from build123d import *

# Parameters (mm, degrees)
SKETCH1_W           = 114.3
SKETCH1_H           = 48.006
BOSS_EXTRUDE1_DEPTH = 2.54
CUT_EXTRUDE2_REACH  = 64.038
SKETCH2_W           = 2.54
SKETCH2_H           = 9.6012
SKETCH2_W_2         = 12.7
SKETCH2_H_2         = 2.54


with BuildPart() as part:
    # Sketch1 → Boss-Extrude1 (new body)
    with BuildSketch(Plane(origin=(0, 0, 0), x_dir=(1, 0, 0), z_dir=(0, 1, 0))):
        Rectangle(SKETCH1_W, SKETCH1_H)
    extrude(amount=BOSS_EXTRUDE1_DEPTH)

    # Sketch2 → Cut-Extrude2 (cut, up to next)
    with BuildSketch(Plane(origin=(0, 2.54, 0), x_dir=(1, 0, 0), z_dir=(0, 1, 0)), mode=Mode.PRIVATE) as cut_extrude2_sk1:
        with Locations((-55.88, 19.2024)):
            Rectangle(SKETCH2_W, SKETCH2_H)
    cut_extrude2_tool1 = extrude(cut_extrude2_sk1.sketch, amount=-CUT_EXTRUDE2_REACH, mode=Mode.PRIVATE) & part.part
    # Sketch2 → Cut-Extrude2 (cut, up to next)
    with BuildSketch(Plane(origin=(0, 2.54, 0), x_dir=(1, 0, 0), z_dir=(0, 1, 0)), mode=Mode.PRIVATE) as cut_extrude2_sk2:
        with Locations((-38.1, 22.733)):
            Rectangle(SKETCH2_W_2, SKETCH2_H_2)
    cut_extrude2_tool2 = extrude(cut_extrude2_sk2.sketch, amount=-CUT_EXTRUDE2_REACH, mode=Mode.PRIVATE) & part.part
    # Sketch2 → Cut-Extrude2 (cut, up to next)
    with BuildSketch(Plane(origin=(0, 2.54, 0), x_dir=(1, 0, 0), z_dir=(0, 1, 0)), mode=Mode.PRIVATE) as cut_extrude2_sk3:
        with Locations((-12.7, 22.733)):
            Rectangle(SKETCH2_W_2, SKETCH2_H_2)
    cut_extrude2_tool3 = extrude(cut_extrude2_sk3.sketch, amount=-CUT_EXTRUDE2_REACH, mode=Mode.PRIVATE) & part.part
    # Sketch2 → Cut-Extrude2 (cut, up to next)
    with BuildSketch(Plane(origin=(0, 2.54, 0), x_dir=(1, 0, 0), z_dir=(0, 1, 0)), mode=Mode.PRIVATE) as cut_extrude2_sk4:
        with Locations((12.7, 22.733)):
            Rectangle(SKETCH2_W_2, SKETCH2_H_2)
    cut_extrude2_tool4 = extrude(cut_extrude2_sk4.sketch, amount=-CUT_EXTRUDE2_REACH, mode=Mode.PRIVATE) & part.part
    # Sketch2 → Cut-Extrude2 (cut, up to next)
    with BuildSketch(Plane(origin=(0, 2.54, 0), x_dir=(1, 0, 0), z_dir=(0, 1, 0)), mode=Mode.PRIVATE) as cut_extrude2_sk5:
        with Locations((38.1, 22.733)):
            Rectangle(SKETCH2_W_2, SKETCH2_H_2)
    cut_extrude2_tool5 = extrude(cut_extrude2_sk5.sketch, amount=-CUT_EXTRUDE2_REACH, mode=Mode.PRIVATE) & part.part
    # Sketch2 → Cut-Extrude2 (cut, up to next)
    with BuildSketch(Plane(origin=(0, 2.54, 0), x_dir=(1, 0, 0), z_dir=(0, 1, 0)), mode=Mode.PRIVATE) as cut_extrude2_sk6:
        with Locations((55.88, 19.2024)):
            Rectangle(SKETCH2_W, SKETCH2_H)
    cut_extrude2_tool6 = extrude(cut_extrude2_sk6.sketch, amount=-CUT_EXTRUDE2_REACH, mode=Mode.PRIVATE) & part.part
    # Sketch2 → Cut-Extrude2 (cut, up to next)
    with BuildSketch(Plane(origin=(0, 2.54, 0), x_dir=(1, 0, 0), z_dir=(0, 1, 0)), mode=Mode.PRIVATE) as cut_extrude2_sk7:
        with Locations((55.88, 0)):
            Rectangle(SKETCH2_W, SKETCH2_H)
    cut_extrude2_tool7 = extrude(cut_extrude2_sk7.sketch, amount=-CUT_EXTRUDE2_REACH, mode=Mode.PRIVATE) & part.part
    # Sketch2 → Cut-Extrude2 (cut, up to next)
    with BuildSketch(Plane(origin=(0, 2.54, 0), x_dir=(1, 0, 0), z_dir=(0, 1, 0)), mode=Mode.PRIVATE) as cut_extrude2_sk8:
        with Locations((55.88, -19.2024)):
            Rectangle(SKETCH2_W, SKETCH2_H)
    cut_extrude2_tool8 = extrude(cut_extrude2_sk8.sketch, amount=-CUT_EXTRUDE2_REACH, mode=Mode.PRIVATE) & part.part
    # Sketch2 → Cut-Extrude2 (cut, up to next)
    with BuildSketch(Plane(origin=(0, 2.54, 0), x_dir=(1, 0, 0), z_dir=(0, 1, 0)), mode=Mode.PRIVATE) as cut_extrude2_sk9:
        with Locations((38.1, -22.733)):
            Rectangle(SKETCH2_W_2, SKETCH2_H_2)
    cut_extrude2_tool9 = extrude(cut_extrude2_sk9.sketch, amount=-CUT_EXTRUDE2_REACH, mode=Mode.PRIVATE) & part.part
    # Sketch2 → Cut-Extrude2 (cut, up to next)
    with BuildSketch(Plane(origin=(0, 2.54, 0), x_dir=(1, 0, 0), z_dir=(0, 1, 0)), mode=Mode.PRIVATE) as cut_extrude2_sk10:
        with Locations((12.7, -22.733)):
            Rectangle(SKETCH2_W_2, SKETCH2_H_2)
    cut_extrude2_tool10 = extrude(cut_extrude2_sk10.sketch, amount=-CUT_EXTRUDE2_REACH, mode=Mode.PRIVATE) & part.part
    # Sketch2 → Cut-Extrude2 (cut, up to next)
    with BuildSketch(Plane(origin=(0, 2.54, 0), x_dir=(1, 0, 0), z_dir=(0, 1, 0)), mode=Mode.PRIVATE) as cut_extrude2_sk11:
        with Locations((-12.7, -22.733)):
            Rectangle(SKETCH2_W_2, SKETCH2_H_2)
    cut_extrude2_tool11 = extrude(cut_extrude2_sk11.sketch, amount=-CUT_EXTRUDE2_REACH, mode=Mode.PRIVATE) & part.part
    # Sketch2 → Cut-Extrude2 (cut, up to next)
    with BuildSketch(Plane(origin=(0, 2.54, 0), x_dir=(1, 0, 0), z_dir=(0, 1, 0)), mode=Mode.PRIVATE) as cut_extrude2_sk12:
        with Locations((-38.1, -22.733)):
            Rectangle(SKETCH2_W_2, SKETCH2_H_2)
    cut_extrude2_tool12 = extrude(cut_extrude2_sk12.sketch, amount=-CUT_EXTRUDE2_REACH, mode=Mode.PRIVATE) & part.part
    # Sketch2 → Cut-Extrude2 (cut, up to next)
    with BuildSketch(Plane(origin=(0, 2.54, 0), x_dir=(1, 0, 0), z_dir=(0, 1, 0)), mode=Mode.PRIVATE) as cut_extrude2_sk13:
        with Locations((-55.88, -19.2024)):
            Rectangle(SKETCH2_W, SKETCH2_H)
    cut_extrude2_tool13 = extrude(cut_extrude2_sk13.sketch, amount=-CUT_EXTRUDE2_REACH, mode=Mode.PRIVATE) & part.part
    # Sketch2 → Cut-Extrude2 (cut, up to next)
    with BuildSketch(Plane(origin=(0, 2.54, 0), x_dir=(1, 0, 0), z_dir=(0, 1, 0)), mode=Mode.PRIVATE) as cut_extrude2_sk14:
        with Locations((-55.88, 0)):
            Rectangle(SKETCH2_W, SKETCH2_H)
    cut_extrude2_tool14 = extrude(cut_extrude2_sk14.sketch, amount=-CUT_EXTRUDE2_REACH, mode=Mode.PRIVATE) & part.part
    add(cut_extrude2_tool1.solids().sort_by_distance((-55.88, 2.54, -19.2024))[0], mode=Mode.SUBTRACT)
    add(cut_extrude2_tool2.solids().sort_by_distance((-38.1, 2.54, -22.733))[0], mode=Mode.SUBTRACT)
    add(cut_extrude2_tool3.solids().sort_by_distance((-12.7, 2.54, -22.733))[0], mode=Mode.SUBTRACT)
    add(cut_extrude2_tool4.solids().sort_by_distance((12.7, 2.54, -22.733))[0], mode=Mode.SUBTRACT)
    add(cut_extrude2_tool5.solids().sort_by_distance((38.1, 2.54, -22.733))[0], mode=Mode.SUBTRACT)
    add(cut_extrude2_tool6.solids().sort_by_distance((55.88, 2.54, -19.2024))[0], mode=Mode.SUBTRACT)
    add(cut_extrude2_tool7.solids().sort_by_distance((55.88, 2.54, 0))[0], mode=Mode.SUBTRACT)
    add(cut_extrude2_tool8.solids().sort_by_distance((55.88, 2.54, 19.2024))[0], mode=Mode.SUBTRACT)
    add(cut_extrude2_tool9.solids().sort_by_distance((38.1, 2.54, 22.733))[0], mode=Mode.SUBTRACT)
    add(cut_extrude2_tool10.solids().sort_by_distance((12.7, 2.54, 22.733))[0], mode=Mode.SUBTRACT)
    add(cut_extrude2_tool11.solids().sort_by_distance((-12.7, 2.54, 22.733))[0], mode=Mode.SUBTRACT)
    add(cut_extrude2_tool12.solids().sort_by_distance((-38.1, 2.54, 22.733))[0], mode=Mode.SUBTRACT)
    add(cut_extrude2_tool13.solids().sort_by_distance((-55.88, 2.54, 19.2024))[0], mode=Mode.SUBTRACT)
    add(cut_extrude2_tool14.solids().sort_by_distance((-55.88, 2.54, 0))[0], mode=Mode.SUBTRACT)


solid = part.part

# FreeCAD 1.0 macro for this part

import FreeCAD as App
import Part
import Sketcher

V = App.Vector
Q = App.Units.Quantity

doc = App.newDocument("Part")
body = doc.addObject("PartDesign::Body", "Body")

# Sketch on XZ plane
sketch1 = doc.addObject("Sketcher::SketchObject", "Sketch")
body.addObject(sketch1)
sketch1.AttachmentSupport = (doc.XZ_Plane, [""])
sketch1.MapMode = "FlatFace"
sketch1.addGeometry(Part.LineSegment(V(-57, -24, 0), V(-57, 24, 0)), False)
sketch1.addGeometry(Part.LineSegment(V(-57, 24, 0), V(57, 24, 0)), False)
sketch1.addGeometry(Part.LineSegment(V(57, 24, 0), V(57, -24, 0)), False)
sketch1.addGeometry(Part.LineSegment(V(57, -24, 0), V(-57, -24, 0)), False)
sketch1.addConstraint(Sketcher.Constraint("Coincident", 0, 2, 1, 1))
sketch1.addConstraint(Sketcher.Constraint("Coincident", 1, 2, 2, 1))
sketch1.addConstraint(Sketcher.Constraint("Coincident", 2, 2, 3, 1))
sketch1.addConstraint(Sketcher.Constraint("Coincident", 3, 2, 0, 1))
sketch1.addConstraint(Sketcher.Constraint("Vertical", 0))
sketch1.addConstraint(Sketcher.Constraint("Horizontal", 1))
sketch1.addConstraint(Sketcher.Constraint("Vertical", 2))
sketch1.addConstraint(Sketcher.Constraint("Horizontal", 3))
sketch1.addConstraint(Sketcher.Constraint("Symmetric", 0, 2, 2, 2, -1, 1))
sketch1.addConstraint(Sketcher.Constraint("DistanceX", 1, 1, 1, 2, Q("4.5 in")))
sketch1.addConstraint(Sketcher.Constraint("DistanceY", 0, 1, 0, 2, Q("1.89 in")))
pad1 = doc.addObject("PartDesign::Pad", "Pad")
body.addObject(pad1)
pad1.Profile = sketch1
pad1.Length = Q("0.1 in")
pad1.Reversed = True

# Sketch on XZ plane
sketch2 = doc.addObject("Sketcher::SketchObject", "Sketch001")
body.addObject(sketch2)
sketch2.AttachmentSupport = (doc.XZ_Plane, [""])
sketch2.MapMode = "FlatFace"
sketch2.AttachmentOffset = App.Placement(V(0, 0, -0.1 * 25.4), App.Rotation())
sketch2.addGeometry(Part.LineSegment(V(-57.1, -24, 0), V(-57.1, -14.4, 0)), False)
sketch2.addGeometry(Part.LineSegment(V(-57.1, -14.4, 0), V(-54.6, -14.4, 0)), False)
sketch2.addGeometry(Part.LineSegment(V(-54.6, -14.4, 0), V(-54.6, -24, 0)), False)
sketch2.addGeometry(Part.LineSegment(V(-54.6, -24, 0), V(-57.1, -24, 0)), False)
sketch2.addConstraint(Sketcher.Constraint("Coincident", 0, 2, 1, 1))
sketch2.addConstraint(Sketcher.Constraint("Coincident", 1, 2, 2, 1))
sketch2.addConstraint(Sketcher.Constraint("Coincident", 2, 2, 3, 1))
sketch2.addConstraint(Sketcher.Constraint("Coincident", 3, 2, 0, 1))
sketch2.addConstraint(Sketcher.Constraint("Vertical", 0))
sketch2.addConstraint(Sketcher.Constraint("Horizontal", 1))
sketch2.addConstraint(Sketcher.Constraint("Vertical", 2))
sketch2.addConstraint(Sketcher.Constraint("Horizontal", 3))
sketch2.addConstraint(Sketcher.Constraint("DistanceX", 1, 1, 1, 2, Q("0.1 in")))
sketch2.addConstraint(Sketcher.Constraint("DistanceY", 0, 1, 0, 2, Q("0.378 in")))
sketch2.addConstraint(Sketcher.Constraint("DistanceX", 0, 2, -1, 1, Q("2.25 in")))
sketch2.addConstraint(Sketcher.Constraint("DistanceY", 0, 2, -1, 1, Q("0.567 in")))
pocket1 = doc.addObject("PartDesign::Pocket", "Pocket")
body.addObject(pocket1)
pocket1.Profile = sketch2
pocket1.Type = "UpToFirst"
pocket1.Reversed = True

# Sketch on XZ plane
sketch3 = doc.addObject("Sketcher::SketchObject", "Sketch002")
body.addObject(sketch3)
sketch3.AttachmentSupport = (doc.XZ_Plane, [""])
sketch3.MapMode = "FlatFace"
sketch3.AttachmentOffset = App.Placement(V(0, 0, -0.1 * 25.4), App.Rotation())
sketch3.addGeometry(Part.LineSegment(V(-44.5, -24, 0), V(-44.5, -21.5, 0)), False)
sketch3.addGeometry(Part.LineSegment(V(-44.5, -21.5, 0), V(-31.8, -21.5, 0)), False)
sketch3.addGeometry(Part.LineSegment(V(-31.8, -21.5, 0), V(-31.8, -24, 0)), False)
sketch3.addGeometry(Part.LineSegment(V(-31.8, -24, 0), V(-44.5, -24, 0)), False)
sketch3.addConstraint(Sketcher.Constraint("Coincident", 0, 2, 1, 1))
sketch3.addConstraint(Sketcher.Constraint("Coincident", 1, 2, 2, 1))
sketch3.addConstraint(Sketcher.Constraint("Coincident", 2, 2, 3, 1))
sketch3.addConstraint(Sketcher.Constraint("Coincident", 3, 2, 0, 1))
sketch3.addConstraint(Sketcher.Constraint("Vertical", 0))
sketch3.addConstraint(Sketcher.Constraint("Horizontal", 1))
sketch3.addConstraint(Sketcher.Constraint("Vertical", 2))
sketch3.addConstraint(Sketcher.Constraint("Horizontal", 3))
sketch3.addConstraint(Sketcher.Constraint("DistanceX", 1, 1, 1, 2, Q("0.5 in")))
sketch3.addConstraint(Sketcher.Constraint("DistanceY", 0, 1, 0, 2, Q("0.1 in")))
sketch3.addConstraint(Sketcher.Constraint("DistanceX", 0, 2, -1, 1, Q("1.75 in")))
sketch3.addConstraint(Sketcher.Constraint("DistanceY", 0, 2, -1, 1, Q("0.845 in")))
pocket2 = doc.addObject("PartDesign::Pocket", "Pocket001")
body.addObject(pocket2)
pocket2.Profile = sketch3
pocket2.Type = "UpToFirst"
pocket2.Reversed = True

# Sketch on XZ plane
sketch4 = doc.addObject("Sketcher::SketchObject", "Sketch003")
body.addObject(sketch4)
sketch4.AttachmentSupport = (doc.XZ_Plane, [""])
sketch4.MapMode = "FlatFace"
sketch4.AttachmentOffset = App.Placement(V(0, 0, -0.1 * 25.4), App.Rotation())
sketch4.addGeometry(Part.LineSegment(V(-19.1, -24, 0), V(-19.1, -21.5, 0)), False)
sketch4.addGeometry(Part.LineSegment(V(-19.1, -21.5, 0), V(-6.3, -21.5, 0)), False)
sketch4.addGeometry(Part.LineSegment(V(-6.3, -21.5, 0), V(-6.3, -24, 0)), False)
sketch4.addGeometry(Part.LineSegment(V(-6.3, -24, 0), V(-19.1, -24, 0)), False)
sketch4.addConstraint(Sketcher.Constraint("Coincident", 0, 2, 1, 1))
sketch4.addConstraint(Sketcher.Constraint("Coincident", 1, 2, 2, 1))
sketch4.addConstraint(Sketcher.Constraint("Coincident", 2, 2, 3, 1))
sketch4.addConstraint(Sketcher.Constraint("Coincident", 3, 2, 0, 1))
sketch4.addConstraint(Sketcher.Constraint("Vertical", 0))
sketch4.addConstraint(Sketcher.Constraint("Horizontal", 1))
sketch4.addConstraint(Sketcher.Constraint("Vertical", 2))
sketch4.addConstraint(Sketcher.Constraint("Horizontal", 3))
sketch4.addConstraint(Sketcher.Constraint("DistanceX", 1, 1, 1, 2, Q("0.5 in")))
sketch4.addConstraint(Sketcher.Constraint("DistanceY", 0, 1, 0, 2, Q("0.1 in")))
sketch4.addConstraint(Sketcher.Constraint("DistanceX", 0, 2, -1, 1, Q("0.75 in")))
sketch4.addConstraint(Sketcher.Constraint("DistanceY", 0, 2, -1, 1, Q("0.845 in")))
pocket3 = doc.addObject("PartDesign::Pocket", "Pocket002")
body.addObject(pocket3)
pocket3.Profile = sketch4
pocket3.Type = "UpToFirst"
pocket3.Reversed = True

# Sketch on XZ plane
sketch5 = doc.addObject("Sketcher::SketchObject", "Sketch004")
body.addObject(sketch5)
sketch5.AttachmentSupport = (doc.XZ_Plane, [""])
sketch5.MapMode = "FlatFace"
sketch5.AttachmentOffset = App.Placement(V(0, 0, -0.1 * 25.4), App.Rotation())
sketch5.addGeometry(Part.LineSegment(V(6.3, -24, 0), V(6.3, -21.5, 0)), False)
sketch5.addGeometry(Part.LineSegment(V(6.3, -21.5, 0), V(19.1, -21.5, 0)), False)
sketch5.addGeometry(Part.LineSegment(V(19.1, -21.5, 0), V(19.1, -24, 0)), False)
sketch5.addGeometry(Part.LineSegment(V(19.1, -24, 0), V(6.3, -24, 0)), False)
sketch5.addConstraint(Sketcher.Constraint("Coincident", 0, 2, 1, 1))
sketch5.addConstraint(Sketcher.Constraint("Coincident", 1, 2, 2, 1))
sketch5.addConstraint(Sketcher.Constraint("Coincident", 2, 2, 3, 1))
sketch5.addConstraint(Sketcher.Constraint("Coincident", 3, 2, 0, 1))
sketch5.addConstraint(Sketcher.Constraint("Vertical", 0))
sketch5.addConstraint(Sketcher.Constraint("Horizontal", 1))
sketch5.addConstraint(Sketcher.Constraint("Vertical", 2))
sketch5.addConstraint(Sketcher.Constraint("Horizontal", 3))
sketch5.addConstraint(Sketcher.Constraint("DistanceX", 1, 1, 1, 2, Q("0.5 in")))
sketch5.addConstraint(Sketcher.Constraint("DistanceY", 0, 1, 0, 2, Q("0.1 in")))
sketch5.addConstraint(Sketcher.Constraint("DistanceX", -1, 1, 0, 2, Q("0.25 in")))
sketch5.addConstraint(Sketcher.Constraint("DistanceY", 0, 2, -1, 1, Q("0.845 in")))
pocket4 = doc.addObject("PartDesign::Pocket", "Pocket003")
body.addObject(pocket4)
pocket4.Profile = sketch5
pocket4.Type = "UpToFirst"
pocket4.Reversed = True

# Sketch on XZ plane
sketch6 = doc.addObject("Sketcher::SketchObject", "Sketch005")
body.addObject(sketch6)
sketch6.AttachmentSupport = (doc.XZ_Plane, [""])
sketch6.MapMode = "FlatFace"
sketch6.AttachmentOffset = App.Placement(V(0, 0, -0.1 * 25.4), App.Rotation())
sketch6.addGeometry(Part.LineSegment(V(31.8, -24, 0), V(31.8, -21.5, 0)), False)
sketch6.addGeometry(Part.LineSegment(V(31.8, -21.5, 0), V(44.5, -21.5, 0)), False)
sketch6.addGeometry(Part.LineSegment(V(44.5, -21.5, 0), V(44.5, -24, 0)), False)
sketch6.addGeometry(Part.LineSegment(V(44.5, -24, 0), V(31.8, -24, 0)), False)
sketch6.addConstraint(Sketcher.Constraint("Coincident", 0, 2, 1, 1))
sketch6.addConstraint(Sketcher.Constraint("Coincident", 1, 2, 2, 1))
sketch6.addConstraint(Sketcher.Constraint("Coincident", 2, 2, 3, 1))
sketch6.addConstraint(Sketcher.Constraint("Coincident", 3, 2, 0, 1))
sketch6.addConstraint(Sketcher.Constraint("Vertical", 0))
sketch6.addConstraint(Sketcher.Constraint("Horizontal", 1))
sketch6.addConstraint(Sketcher.Constraint("Vertical", 2))
sketch6.addConstraint(Sketcher.Constraint("Horizontal", 3))
sketch6.addConstraint(Sketcher.Constraint("DistanceX", 1, 1, 1, 2, Q("0.5 in")))
sketch6.addConstraint(Sketcher.Constraint("DistanceY", 0, 1, 0, 2, Q("0.1 in")))
sketch6.addConstraint(Sketcher.Constraint("DistanceX", -1, 1, 0, 2, Q("1.25 in")))
sketch6.addConstraint(Sketcher.Constraint("DistanceY", 0, 2, -1, 1, Q("0.845 in")))
pocket5 = doc.addObject("PartDesign::Pocket", "Pocket004")
body.addObject(pocket5)
pocket5.Profile = sketch6
pocket5.Type = "UpToFirst"
pocket5.Reversed = True

# Sketch on XZ plane
sketch7 = doc.addObject("Sketcher::SketchObject", "Sketch006")
body.addObject(sketch7)
sketch7.AttachmentSupport = (doc.XZ_Plane, [""])
sketch7.MapMode = "FlatFace"
sketch7.AttachmentOffset = App.Placement(V(0, 0, -0.1 * 25.4), App.Rotation())
sketch7.addGeometry(Part.LineSegment(V(54.6, -24, 0), V(54.6, -14.4, 0)), False)
sketch7.addGeometry(Part.LineSegment(V(54.6, -14.4, 0), V(57.1, -14.4, 0)), False)
sketch7.addGeometry(Part.LineSegment(V(57.1, -14.4, 0), V(57.1, -24, 0)), False)
sketch7.addGeometry(Part.LineSegment(V(57.1, -24, 0), V(54.6, -24, 0)), False)
sketch7.addConstraint(Sketcher.Constraint("Coincident", 0, 2, 1, 1))
sketch7.addConstraint(Sketcher.Constraint("Coincident", 1, 2, 2, 1))
sketch7.addConstraint(Sketcher.Constraint("Coincident", 2, 2, 3, 1))
sketch7.addConstraint(Sketcher.Constraint("Coincident", 3, 2, 0, 1))
sketch7.addConstraint(Sketcher.Constraint("Vertical", 0))
sketch7.addConstraint(Sketcher.Constraint("Horizontal", 1))
sketch7.addConstraint(Sketcher.Constraint("Vertical", 2))
sketch7.addConstraint(Sketcher.Constraint("Horizontal", 3))
sketch7.addConstraint(Sketcher.Constraint("DistanceX", 1, 1, 1, 2, Q("0.1 in")))
sketch7.addConstraint(Sketcher.Constraint("DistanceY", 0, 1, 0, 2, Q("0.378 in")))
sketch7.addConstraint(Sketcher.Constraint("DistanceX", -1, 1, 0, 2, Q("2.15 in")))
sketch7.addConstraint(Sketcher.Constraint("DistanceY", 0, 2, -1, 1, Q("0.567 in")))
pocket6 = doc.addObject("PartDesign::Pocket", "Pocket005")
body.addObject(pocket6)
pocket6.Profile = sketch7
pocket6.Type = "UpToFirst"
pocket6.Reversed = True

# Sketch on XZ plane
sketch8 = doc.addObject("Sketcher::SketchObject", "Sketch007")
body.addObject(sketch8)
sketch8.AttachmentSupport = (doc.XZ_Plane, [""])
sketch8.MapMode = "FlatFace"
sketch8.AttachmentOffset = App.Placement(V(0, 0, -0.1 * 25.4), App.Rotation())
sketch8.addGeometry(Part.LineSegment(V(54.6, -4.8, 0), V(54.6, 4.8, 0)), False)
sketch8.addGeometry(Part.LineSegment(V(54.6, 4.8, 0), V(57.1, 4.8, 0)), False)
sketch8.addGeometry(Part.LineSegment(V(57.1, 4.8, 0), V(57.1, -4.8, 0)), False)
sketch8.addGeometry(Part.LineSegment(V(57.1, -4.8, 0), V(54.6, -4.8, 0)), False)
sketch8.addConstraint(Sketcher.Constraint("Coincident", 0, 2, 1, 1))
sketch8.addConstraint(Sketcher.Constraint("Coincident", 1, 2, 2, 1))
sketch8.addConstraint(Sketcher.Constraint("Coincident", 2, 2, 3, 1))
sketch8.addConstraint(Sketcher.Constraint("Coincident", 3, 2, 0, 1))
sketch8.addConstraint(Sketcher.Constraint("Vertical", 0))
sketch8.addConstraint(Sketcher.Constraint("Horizontal", 1))
sketch8.addConstraint(Sketcher.Constraint("Vertical", 2))
sketch8.addConstraint(Sketcher.Constraint("Horizontal", 3))
sketch8.addConstraint(Sketcher.Constraint("DistanceX", 1, 1, 1, 2, Q("0.1 in")))
sketch8.addConstraint(Sketcher.Constraint("DistanceY", 0, 1, 0, 2, Q("0.378 in")))
sketch8.addConstraint(Sketcher.Constraint("DistanceX", -1, 1, 0, 2, Q("2.15 in")))
sketch8.addConstraint(Sketcher.Constraint("DistanceY", -1, 1, 0, 2, Q("0.189 in")))
pocket7 = doc.addObject("PartDesign::Pocket", "Pocket006")
body.addObject(pocket7)
pocket7.Profile = sketch8
pocket7.Type = "UpToFirst"
pocket7.Reversed = True

# Sketch on XZ plane
sketch9 = doc.addObject("Sketcher::SketchObject", "Sketch008")
body.addObject(sketch9)
sketch9.AttachmentSupport = (doc.XZ_Plane, [""])
sketch9.MapMode = "FlatFace"
sketch9.AttachmentOffset = App.Placement(V(0, 0, -0.1 * 25.4), App.Rotation())
sketch9.addGeometry(Part.LineSegment(V(54.6, 14.4, 0), V(54.6, 24, 0)), False)
sketch9.addGeometry(Part.LineSegment(V(54.6, 24, 0), V(57.1, 24, 0)), False)
sketch9.addGeometry(Part.LineSegment(V(57.1, 24, 0), V(57.1, 14.4, 0)), False)
sketch9.addGeometry(Part.LineSegment(V(57.1, 14.4, 0), V(54.6, 14.4, 0)), False)
sketch9.addConstraint(Sketcher.Constraint("Coincident", 0, 2, 1, 1))
sketch9.addConstraint(Sketcher.Constraint("Coincident", 1, 2, 2, 1))
sketch9.addConstraint(Sketcher.Constraint("Coincident", 2, 2, 3, 1))
sketch9.addConstraint(Sketcher.Constraint("Coincident", 3, 2, 0, 1))
sketch9.addConstraint(Sketcher.Constraint("Vertical", 0))
sketch9.addConstraint(Sketcher.Constraint("Horizontal", 1))
sketch9.addConstraint(Sketcher.Constraint("Vertical", 2))
sketch9.addConstraint(Sketcher.Constraint("Horizontal", 3))
sketch9.addConstraint(Sketcher.Constraint("DistanceX", 1, 1, 1, 2, Q("0.1 in")))
sketch9.addConstraint(Sketcher.Constraint("DistanceY", 0, 1, 0, 2, Q("0.378 in")))
sketch9.addConstraint(Sketcher.Constraint("DistanceX", -1, 1, 0, 2, Q("2.15 in")))
sketch9.addConstraint(Sketcher.Constraint("DistanceY", -1, 1, 0, 2, Q("0.945 in")))
pocket8 = doc.addObject("PartDesign::Pocket", "Pocket007")
body.addObject(pocket8)
pocket8.Profile = sketch9
pocket8.Type = "UpToFirst"
pocket8.Reversed = True

# Sketch on XZ plane
sketch10 = doc.addObject("Sketcher::SketchObject", "Sketch009")
body.addObject(sketch10)
sketch10.AttachmentSupport = (doc.XZ_Plane, [""])
sketch10.MapMode = "FlatFace"
sketch10.AttachmentOffset = App.Placement(V(0, 0, -0.1 * 25.4), App.Rotation())
sketch10.addGeometry(Part.LineSegment(V(31.8, 21.5, 0), V(31.8, 24, 0)), False)
sketch10.addGeometry(Part.LineSegment(V(31.8, 24, 0), V(44.5, 24, 0)), False)
sketch10.addGeometry(Part.LineSegment(V(44.5, 24, 0), V(44.5, 21.5, 0)), False)
sketch10.addGeometry(Part.LineSegment(V(44.5, 21.5, 0), V(31.8, 21.5, 0)), False)
sketch10.addConstraint(Sketcher.Constraint("Coincident", 0, 2, 1, 1))
sketch10.addConstraint(Sketcher.Constraint("Coincident", 1, 2, 2, 1))
sketch10.addConstraint(Sketcher.Constraint("Coincident", 2, 2, 3, 1))
sketch10.addConstraint(Sketcher.Constraint("Coincident", 3, 2, 0, 1))
sketch10.addConstraint(Sketcher.Constraint("Vertical", 0))
sketch10.addConstraint(Sketcher.Constraint("Horizontal", 1))
sketch10.addConstraint(Sketcher.Constraint("Vertical", 2))
sketch10.addConstraint(Sketcher.Constraint("Horizontal", 3))
sketch10.addConstraint(Sketcher.Constraint("DistanceX", 1, 1, 1, 2, Q("0.5 in")))
sketch10.addConstraint(Sketcher.Constraint("DistanceY", 0, 1, 0, 2, Q("0.1 in")))
sketch10.addConstraint(Sketcher.Constraint("DistanceX", -1, 1, 0, 2, Q("1.25 in")))
sketch10.addConstraint(Sketcher.Constraint("DistanceY", -1, 1, 0, 2, Q("0.945 in")))
pocket9 = doc.addObject("PartDesign::Pocket", "Pocket008")
body.addObject(pocket9)
pocket9.Profile = sketch10
pocket9.Type = "UpToFirst"
pocket9.Reversed = True

# Sketch on XZ plane
sketch11 = doc.addObject("Sketcher::SketchObject", "Sketch010")
body.addObject(sketch11)
sketch11.AttachmentSupport = (doc.XZ_Plane, [""])
sketch11.MapMode = "FlatFace"
sketch11.AttachmentOffset = App.Placement(V(0, 0, -0.1 * 25.4), App.Rotation())
sketch11.addGeometry(Part.LineSegment(V(6.3, 21.5, 0), V(6.3, 24, 0)), False)
sketch11.addGeometry(Part.LineSegment(V(6.3, 24, 0), V(19.1, 24, 0)), False)
sketch11.addGeometry(Part.LineSegment(V(19.1, 24, 0), V(19.1, 21.5, 0)), False)
sketch11.addGeometry(Part.LineSegment(V(19.1, 21.5, 0), V(6.3, 21.5, 0)), False)
sketch11.addConstraint(Sketcher.Constraint("Coincident", 0, 2, 1, 1))
sketch11.addConstraint(Sketcher.Constraint("Coincident", 1, 2, 2, 1))
sketch11.addConstraint(Sketcher.Constraint("Coincident", 2, 2, 3, 1))
sketch11.addConstraint(Sketcher.Constraint("Coincident", 3, 2, 0, 1))
sketch11.addConstraint(Sketcher.Constraint("Vertical", 0))
sketch11.addConstraint(Sketcher.Constraint("Horizontal", 1))
sketch11.addConstraint(Sketcher.Constraint("Vertical", 2))
sketch11.addConstraint(Sketcher.Constraint("Horizontal", 3))
sketch11.addConstraint(Sketcher.Constraint("DistanceX", 1, 1, 1, 2, Q("0.5 in")))
sketch11.addConstraint(Sketcher.Constraint("DistanceY", 0, 1, 0, 2, Q("0.1 in")))
sketch11.addConstraint(Sketcher.Constraint("DistanceX", -1, 1, 0, 2, Q("0.25 in")))
sketch11.addConstraint(Sketcher.Constraint("DistanceY", -1, 1, 0, 2, Q("0.945 in")))
pocket10 = doc.addObject("PartDesign::Pocket", "Pocket009")
body.addObject(pocket10)
pocket10.Profile = sketch11
pocket10.Type = "UpToFirst"
pocket10.Reversed = True

# Sketch on XZ plane
sketch12 = doc.addObject("Sketcher::SketchObject", "Sketch011")
body.addObject(sketch12)
sketch12.AttachmentSupport = (doc.XZ_Plane, [""])
sketch12.MapMode = "FlatFace"
sketch12.AttachmentOffset = App.Placement(V(0, 0, -0.1 * 25.4), App.Rotation())
sketch12.addGeometry(Part.LineSegment(V(-19.1, 21.5, 0), V(-19.1, 24, 0)), False)
sketch12.addGeometry(Part.LineSegment(V(-19.1, 24, 0), V(-6.3, 24, 0)), False)
sketch12.addGeometry(Part.LineSegment(V(-6.3, 24, 0), V(-6.3, 21.5, 0)), False)
sketch12.addGeometry(Part.LineSegment(V(-6.3, 21.5, 0), V(-19.1, 21.5, 0)), False)
sketch12.addConstraint(Sketcher.Constraint("Coincident", 0, 2, 1, 1))
sketch12.addConstraint(Sketcher.Constraint("Coincident", 1, 2, 2, 1))
sketch12.addConstraint(Sketcher.Constraint("Coincident", 2, 2, 3, 1))
sketch12.addConstraint(Sketcher.Constraint("Coincident", 3, 2, 0, 1))
sketch12.addConstraint(Sketcher.Constraint("Vertical", 0))
sketch12.addConstraint(Sketcher.Constraint("Horizontal", 1))
sketch12.addConstraint(Sketcher.Constraint("Vertical", 2))
sketch12.addConstraint(Sketcher.Constraint("Horizontal", 3))
sketch12.addConstraint(Sketcher.Constraint("DistanceX", 1, 1, 1, 2, Q("0.5 in")))
sketch12.addConstraint(Sketcher.Constraint("DistanceY", 0, 1, 0, 2, Q("0.1 in")))
sketch12.addConstraint(Sketcher.Constraint("DistanceX", 0, 2, -1, 1, Q("0.75 in")))
sketch12.addConstraint(Sketcher.Constraint("DistanceY", -1, 1, 0, 2, Q("0.945 in")))
pocket11 = doc.addObject("PartDesign::Pocket", "Pocket010")
body.addObject(pocket11)
pocket11.Profile = sketch12
pocket11.Type = "UpToFirst"
pocket11.Reversed = True

# Sketch on XZ plane
sketch13 = doc.addObject("Sketcher::SketchObject", "Sketch012")
body.addObject(sketch13)
sketch13.AttachmentSupport = (doc.XZ_Plane, [""])
sketch13.MapMode = "FlatFace"
sketch13.AttachmentOffset = App.Placement(V(0, 0, -0.1 * 25.4), App.Rotation())
sketch13.addGeometry(Part.LineSegment(V(-44.5, 21.5, 0), V(-44.5, 24, 0)), False)
sketch13.addGeometry(Part.LineSegment(V(-44.5, 24, 0), V(-31.8, 24, 0)), False)
sketch13.addGeometry(Part.LineSegment(V(-31.8, 24, 0), V(-31.8, 21.5, 0)), False)
sketch13.addGeometry(Part.LineSegment(V(-31.8, 21.5, 0), V(-44.5, 21.5, 0)), False)
sketch13.addConstraint(Sketcher.Constraint("Coincident", 0, 2, 1, 1))
sketch13.addConstraint(Sketcher.Constraint("Coincident", 1, 2, 2, 1))
sketch13.addConstraint(Sketcher.Constraint("Coincident", 2, 2, 3, 1))
sketch13.addConstraint(Sketcher.Constraint("Coincident", 3, 2, 0, 1))
sketch13.addConstraint(Sketcher.Constraint("Vertical", 0))
sketch13.addConstraint(Sketcher.Constraint("Horizontal", 1))
sketch13.addConstraint(Sketcher.Constraint("Vertical", 2))
sketch13.addConstraint(Sketcher.Constraint("Horizontal", 3))
sketch13.addConstraint(Sketcher.Constraint("DistanceX", 1, 1, 1, 2, Q("0.5 in")))
sketch13.addConstraint(Sketcher.Constraint("DistanceY", 0, 1, 0, 2, Q("0.1 in")))
sketch13.addConstraint(Sketcher.Constraint("DistanceX", 0, 2, -1, 1, Q("1.75 in")))
sketch13.addConstraint(Sketcher.Constraint("DistanceY", -1, 1, 0, 2, Q("0.945 in")))
pocket12 = doc.addObject("PartDesign::Pocket", "Pocket011")
body.addObject(pocket12)
pocket12.Profile = sketch13
pocket12.Type = "UpToFirst"
pocket12.Reversed = True

# Sketch on XZ plane
sketch14 = doc.addObject("Sketcher::SketchObject", "Sketch013")
body.addObject(sketch14)
sketch14.AttachmentSupport = (doc.XZ_Plane, [""])
sketch14.MapMode = "FlatFace"
sketch14.AttachmentOffset = App.Placement(V(0, 0, -0.1 * 25.4), App.Rotation())
sketch14.addGeometry(Part.LineSegment(V(-57.1, 14.4, 0), V(-57.1, 24, 0)), False)
sketch14.addGeometry(Part.LineSegment(V(-57.1, 24, 0), V(-54.6, 24, 0)), False)
sketch14.addGeometry(Part.LineSegment(V(-54.6, 24, 0), V(-54.6, 14.4, 0)), False)
sketch14.addGeometry(Part.LineSegment(V(-54.6, 14.4, 0), V(-57.1, 14.4, 0)), False)
sketch14.addConstraint(Sketcher.Constraint("Coincident", 0, 2, 1, 1))
sketch14.addConstraint(Sketcher.Constraint("Coincident", 1, 2, 2, 1))
sketch14.addConstraint(Sketcher.Constraint("Coincident", 2, 2, 3, 1))
sketch14.addConstraint(Sketcher.Constraint("Coincident", 3, 2, 0, 1))
sketch14.addConstraint(Sketcher.Constraint("Vertical", 0))
sketch14.addConstraint(Sketcher.Constraint("Horizontal", 1))
sketch14.addConstraint(Sketcher.Constraint("Vertical", 2))
sketch14.addConstraint(Sketcher.Constraint("Horizontal", 3))
sketch14.addConstraint(Sketcher.Constraint("DistanceX", 1, 1, 1, 2, Q("0.1 in")))
sketch14.addConstraint(Sketcher.Constraint("DistanceY", 0, 1, 0, 2, Q("0.378 in")))
sketch14.addConstraint(Sketcher.Constraint("DistanceX", 0, 2, -1, 1, Q("2.25 in")))
sketch14.addConstraint(Sketcher.Constraint("DistanceY", -1, 1, 0, 2, Q("0.945 in")))
pocket13 = doc.addObject("PartDesign::Pocket", "Pocket012")
body.addObject(pocket13)
pocket13.Profile = sketch14
pocket13.Type = "UpToFirst"
pocket13.Reversed = True

# Sketch on XZ plane
sketch15 = doc.addObject("Sketcher::SketchObject", "Sketch014")
body.addObject(sketch15)
sketch15.AttachmentSupport = (doc.XZ_Plane, [""])
sketch15.MapMode = "FlatFace"
sketch15.AttachmentOffset = App.Placement(V(0, 0, -0.1 * 25.4), App.Rotation())
sketch15.addGeometry(Part.LineSegment(V(-57.1, -4.8, 0), V(-57.1, 4.8, 0)), False)
sketch15.addGeometry(Part.LineSegment(V(-57.1, 4.8, 0), V(-54.6, 4.8, 0)), False)
sketch15.addGeometry(Part.LineSegment(V(-54.6, 4.8, 0), V(-54.6, -4.8, 0)), False)
sketch15.addGeometry(Part.LineSegment(V(-54.6, -4.8, 0), V(-57.1, -4.8, 0)), False)
sketch15.addConstraint(Sketcher.Constraint("Coincident", 0, 2, 1, 1))
sketch15.addConstraint(Sketcher.Constraint("Coincident", 1, 2, 2, 1))
sketch15.addConstraint(Sketcher.Constraint("Coincident", 2, 2, 3, 1))
sketch15.addConstraint(Sketcher.Constraint("Coincident", 3, 2, 0, 1))
sketch15.addConstraint(Sketcher.Constraint("Vertical", 0))
sketch15.addConstraint(Sketcher.Constraint("Horizontal", 1))
sketch15.addConstraint(Sketcher.Constraint("Vertical", 2))
sketch15.addConstraint(Sketcher.Constraint("Horizontal", 3))
sketch15.addConstraint(Sketcher.Constraint("DistanceX", 1, 1, 1, 2, Q("0.1 in")))
sketch15.addConstraint(Sketcher.Constraint("DistanceY", 0, 1, 0, 2, Q("0.378 in")))
sketch15.addConstraint(Sketcher.Constraint("DistanceX", 0, 2, -1, 1, Q("2.25 in")))
sketch15.addConstraint(Sketcher.Constraint("DistanceY", -1, 1, 0, 2, Q("0.189 in")))
pocket14 = doc.addObject("PartDesign::Pocket", "Pocket013")
body.addObject(pocket14)
pocket14.Profile = sketch15
pocket14.Type = "UpToFirst"
pocket14.Reversed = True

doc.recompute()
